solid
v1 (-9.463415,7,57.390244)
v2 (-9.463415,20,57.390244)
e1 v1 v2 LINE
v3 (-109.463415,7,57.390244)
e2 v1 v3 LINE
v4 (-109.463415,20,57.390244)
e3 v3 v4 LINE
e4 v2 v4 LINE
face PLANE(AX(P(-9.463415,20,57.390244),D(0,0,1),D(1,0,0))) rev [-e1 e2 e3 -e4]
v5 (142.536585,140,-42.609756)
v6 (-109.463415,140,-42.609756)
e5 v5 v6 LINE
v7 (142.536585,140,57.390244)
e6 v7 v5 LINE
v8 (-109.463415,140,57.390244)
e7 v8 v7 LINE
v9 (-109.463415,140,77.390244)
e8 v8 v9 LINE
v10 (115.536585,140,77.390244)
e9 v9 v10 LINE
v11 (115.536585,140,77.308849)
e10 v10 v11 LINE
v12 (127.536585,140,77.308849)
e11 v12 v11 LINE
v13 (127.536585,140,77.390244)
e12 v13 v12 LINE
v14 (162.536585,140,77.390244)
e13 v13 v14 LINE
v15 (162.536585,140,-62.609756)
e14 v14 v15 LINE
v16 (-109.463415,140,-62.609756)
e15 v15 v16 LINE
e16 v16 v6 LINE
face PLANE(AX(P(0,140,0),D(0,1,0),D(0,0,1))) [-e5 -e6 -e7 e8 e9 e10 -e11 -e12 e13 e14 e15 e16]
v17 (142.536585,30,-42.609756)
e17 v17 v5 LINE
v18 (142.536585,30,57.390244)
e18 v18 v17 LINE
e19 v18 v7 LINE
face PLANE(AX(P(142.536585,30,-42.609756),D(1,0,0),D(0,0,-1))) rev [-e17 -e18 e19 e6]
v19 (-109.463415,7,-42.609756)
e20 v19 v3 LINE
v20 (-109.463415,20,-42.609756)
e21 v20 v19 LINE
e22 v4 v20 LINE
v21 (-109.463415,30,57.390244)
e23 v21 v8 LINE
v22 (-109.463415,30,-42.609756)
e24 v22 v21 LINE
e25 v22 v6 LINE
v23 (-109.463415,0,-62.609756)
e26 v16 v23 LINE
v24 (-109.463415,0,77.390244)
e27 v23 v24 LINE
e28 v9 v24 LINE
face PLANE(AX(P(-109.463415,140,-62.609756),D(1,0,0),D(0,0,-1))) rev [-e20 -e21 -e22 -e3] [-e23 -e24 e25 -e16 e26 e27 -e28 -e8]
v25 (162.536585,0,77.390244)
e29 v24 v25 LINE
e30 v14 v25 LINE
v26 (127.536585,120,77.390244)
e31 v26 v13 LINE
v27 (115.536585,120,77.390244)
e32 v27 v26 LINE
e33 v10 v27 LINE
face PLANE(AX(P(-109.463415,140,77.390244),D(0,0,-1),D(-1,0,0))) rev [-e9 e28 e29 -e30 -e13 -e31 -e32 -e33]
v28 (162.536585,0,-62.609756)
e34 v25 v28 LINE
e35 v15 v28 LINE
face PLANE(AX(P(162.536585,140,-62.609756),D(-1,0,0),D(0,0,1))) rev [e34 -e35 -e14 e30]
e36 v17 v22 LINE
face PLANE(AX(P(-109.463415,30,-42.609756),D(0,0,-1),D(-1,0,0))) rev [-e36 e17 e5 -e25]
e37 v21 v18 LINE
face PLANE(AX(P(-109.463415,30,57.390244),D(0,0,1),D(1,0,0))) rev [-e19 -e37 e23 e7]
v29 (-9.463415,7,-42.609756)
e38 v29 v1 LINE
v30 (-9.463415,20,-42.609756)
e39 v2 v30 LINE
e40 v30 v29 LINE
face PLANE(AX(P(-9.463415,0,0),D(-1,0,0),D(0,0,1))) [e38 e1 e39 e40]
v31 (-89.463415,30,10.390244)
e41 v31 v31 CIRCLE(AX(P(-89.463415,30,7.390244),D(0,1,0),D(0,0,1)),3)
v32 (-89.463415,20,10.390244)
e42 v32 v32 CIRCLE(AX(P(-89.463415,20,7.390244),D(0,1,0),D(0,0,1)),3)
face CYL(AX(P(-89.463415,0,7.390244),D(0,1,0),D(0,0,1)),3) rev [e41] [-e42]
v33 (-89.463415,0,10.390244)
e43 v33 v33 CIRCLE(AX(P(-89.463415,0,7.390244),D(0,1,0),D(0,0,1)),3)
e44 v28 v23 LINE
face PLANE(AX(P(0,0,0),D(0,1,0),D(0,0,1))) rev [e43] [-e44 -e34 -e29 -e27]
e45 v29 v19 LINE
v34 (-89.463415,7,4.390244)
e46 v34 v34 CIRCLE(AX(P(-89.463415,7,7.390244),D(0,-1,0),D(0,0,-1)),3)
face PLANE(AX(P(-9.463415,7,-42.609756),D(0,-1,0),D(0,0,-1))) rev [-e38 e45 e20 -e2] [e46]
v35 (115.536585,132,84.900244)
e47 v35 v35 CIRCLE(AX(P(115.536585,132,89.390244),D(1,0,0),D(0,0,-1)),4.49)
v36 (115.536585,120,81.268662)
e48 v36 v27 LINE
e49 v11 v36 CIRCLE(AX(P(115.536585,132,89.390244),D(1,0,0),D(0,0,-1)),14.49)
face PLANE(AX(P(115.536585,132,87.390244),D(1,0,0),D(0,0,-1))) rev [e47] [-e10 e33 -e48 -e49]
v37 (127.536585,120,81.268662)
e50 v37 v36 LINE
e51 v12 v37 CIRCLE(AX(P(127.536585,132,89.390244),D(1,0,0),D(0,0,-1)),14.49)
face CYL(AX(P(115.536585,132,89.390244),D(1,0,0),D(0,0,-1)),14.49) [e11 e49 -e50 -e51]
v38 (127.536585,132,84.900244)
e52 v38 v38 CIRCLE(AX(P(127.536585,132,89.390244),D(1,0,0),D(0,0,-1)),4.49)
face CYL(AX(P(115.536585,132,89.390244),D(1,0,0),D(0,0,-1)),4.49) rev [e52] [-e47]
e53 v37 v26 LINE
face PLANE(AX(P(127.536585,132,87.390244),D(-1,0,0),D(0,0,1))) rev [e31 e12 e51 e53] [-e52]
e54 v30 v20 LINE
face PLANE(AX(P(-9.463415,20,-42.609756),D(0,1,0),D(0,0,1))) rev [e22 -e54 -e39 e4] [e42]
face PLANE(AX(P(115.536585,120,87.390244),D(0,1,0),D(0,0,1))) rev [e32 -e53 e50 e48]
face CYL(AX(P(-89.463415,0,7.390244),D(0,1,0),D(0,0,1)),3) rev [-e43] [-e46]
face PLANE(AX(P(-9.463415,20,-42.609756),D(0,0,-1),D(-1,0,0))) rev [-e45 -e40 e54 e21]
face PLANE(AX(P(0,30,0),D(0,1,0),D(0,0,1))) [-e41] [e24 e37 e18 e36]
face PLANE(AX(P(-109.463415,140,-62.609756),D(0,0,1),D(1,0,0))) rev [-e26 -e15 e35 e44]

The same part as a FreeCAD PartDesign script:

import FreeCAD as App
import Part
import Sketcher

V = App.Vector
Q = App.Units.Quantity


def add_polygon(sketch, points):
    """Adds a closed chain of lines whose ends are joined by coincident constraints."""
    first, n = sketch.GeometryCount, len(points)
    for a, b in zip(points, points[1:] + points[:1]):
        sketch.addGeometry(Part.LineSegment(App.Vector(*a, 0), App.Vector(*b, 0)), False)
    for i in range(n):
        sketch.addConstraint(Sketcher.Constraint("Coincident", first + i, 2, first + (i + 1) % n, 1))

doc = App.newDocument("Part")
params = doc.addObject("Spreadsheet::Sheet", "Params")
for row, (alias, value) in enumerate([
    ("sketch1_width", "272 mm"),
    ("sketch1_height", "140 mm"),
    ("pad1_length", "140 mm"),
    ("sketch2_width", "252 mm"),
    ("sketch2_height", "100 mm"),
    ("pocket1_length", "110 mm"),
    ("sketch3_width", "13 mm"),
    ("sketch3_height", "100 mm"),
    ("pocket2_length", "100 mm"),
    ("sketch4_diameter", "6 mm"),
    ("sketch5_width", "12 mm"),
    ("pad2_length", "10 mm"),
    ("sketch6_diameter", "28.98 mm"),
    ("sketch6_diameter2", "8.98 mm"),
    ("pad3_length", "12 mm"),
    ("sketch7_diameter", "8.98 mm"),
], start=1):
    params.set(f"A{row}", alias)
    params.set(f"B{row}", "=" + value)
    params.setAlias(f"B{row}", alias)

body = doc.addObject("PartDesign::Body", "Body")

# Sketch on XZ plane
sketch1 = doc.addObject("Sketcher::SketchObject", "Sketch")
body.addObject(sketch1)
sketch1.AttachmentSupport = (doc.XZ_Plane, [""])
sketch1.MapMode = "FlatFace"
add_polygon(sketch1, [(-109, -63), (-109, 77), (163, 77), (163, -63)])  # lines 0-3
sketch1.addConstraint([
    Sketcher.Constraint("Vertical", 0),
    Sketcher.Constraint("Horizontal", 1),
    Sketcher.Constraint("Vertical", 2),
    Sketcher.Constraint("Horizontal", 3),
    Sketcher.Constraint("DistanceX", 1, 1, 1, 2, Q("272 mm")),
    Sketcher.Constraint("DistanceY", 0, 1, 0, 2, Q("140 mm")),
    Sketcher.Constraint("DistanceX", 0, 2, -1, 1, Q("109.463415 mm")),
    Sketcher.Constraint("DistanceY", -1, 1, 0, 2, Q("77.390244 mm")),
])
sketch1.setExpression("Constraints[8]", "Params.sketch1_width")
sketch1.setExpression("Constraints[9]", "Params.sketch1_height")
pad1 = doc.addObject("PartDesign::Pad", "Pad")
body.addObject(pad1)
pad1.Profile = sketch1
pad1.setExpression("Length", "Params.pad1_length")
pad1.Reversed = True

# Sketch on XZ plane
sketch2 = doc.addObject("Sketcher::SketchObject", "Sketch001")
body.addObject(sketch2)
sketch2.AttachmentSupport = (doc.XZ_Plane, [""])
sketch2.MapMode = "FlatFace"
sketch2.AttachmentOffset = App.Placement(V(0, 0, -140), App.Rotation())
add_polygon(sketch2, [(-109, -43), (-109, 57), (143, 57), (143, -43)])  # lines 0-3
sketch2.addConstraint([
    Sketcher.Constraint("Vertical", 0),
    Sketcher.Constraint("Horizontal", 1),
    Sketcher.Constraint("Vertical", 2),
    Sketcher.Constraint("Horizontal", 3),
    Sketcher.Constraint("DistanceX", 1, 1, 1, 2, Q("252 mm")),
    Sketcher.Constraint("DistanceY", 0, 1, 0, 2, Q("100 mm")),
    Sketcher.Constraint("DistanceX", 0, 2, -1, 1, Q("109.463415 mm")),
    Sketcher.Constraint("DistanceY", -1, 1, 0, 2, Q("57.390244 mm")),
])
sketch2.setExpression("Constraints[8]", "Params.sketch2_width")
sketch2.setExpression("Constraints[9]", "Params.sketch2_height")
pocket1 = doc.addObject("PartDesign::Pocket", "Pocket")
body.addObject(pocket1)
pocket1.Profile = sketch2
pocket1.setExpression("Length", "Params.pocket1_length")
pocket1.Reversed = True

# Sketch on YZ plane
sketch3 = doc.addObject("Sketcher::SketchObject", "Sketch002")
body.addObject(sketch3)
sketch3.AttachmentSupport = (doc.YZ_Plane, [""])
sketch3.MapMode = "FlatFace"
sketch3.AttachmentOffset = App.Placement(V(0, 0, -109.463415), App.Rotation())
add_polygon(sketch3, [(20, -43), (7, -43), (7, 57), (20, 57)])  # lines 0-3
sketch3.addConstraint([
    Sketcher.Constraint("Horizontal", 0),
    Sketcher.Constraint("Vertical", 1),
    Sketcher.Constraint("Horizontal", 2),
    Sketcher.Constraint("Vertical", 3),
    Sketcher.Constraint("DistanceX", 0, 2, 0, 1, Q("13 mm")),
    Sketcher.Constraint("DistanceY", 1, 1, 1, 2, Q("100 mm")),
    Sketcher.Constraint("DistanceX", -1, 1, 0, 2, Q("7 mm")),
    Sketcher.Constraint("DistanceY", 0, 2, -1, 1, Q("42.609756 mm")),
])
sketch3.setExpression("Constraints[8]", "Params.sketch3_width")
sketch3.setExpression("Constraints[9]", "Params.sketch3_height")
pocket2 = doc.addObject("PartDesign::Pocket", "Pocket001")
body.addObject(pocket2)
pocket2.Profile = sketch3
pocket2.setExpression("Length", "Params.pocket2_length")
pocket2.Reversed = True

# Sketch on XZ plane
sketch4 = doc.addObject("Sketcher::SketchObject", "Sketch003")
body.addObject(sketch4)
sketch4.AttachmentSupport = (doc.XZ_Plane, [""])
sketch4.MapMode = "FlatFace"
sketch4.AttachmentOffset = App.Placement(V(0, 0, -30), App.Rotation())
sketch4.addGeometry(Part.Circle(V(-89.5, 7.4, 0), V(0, 0, 1), 3), False)
sketch4.addConstraint([
    Sketcher.Constraint("Diameter", 0, Q("6 mm")),
    Sketcher.Constraint("DistanceX", 0, 3, -1, 1, Q("89.463415 mm")),
    Sketcher.Constraint("DistanceY", -1, 1, 0, 3, Q("7.390244 mm")),
])
sketch4.setExpression("Constraints[0]", "Params.sketch4_diameter")
pocket3 = doc.addObject("PartDesign::Pocket", "Pocket002")
body.addObject(pocket3)
pocket3.Profile = sketch4
pocket3.Type = "ThroughAll"
pocket3.Reversed = True

# Sketch on XY plane
sketch5 = doc.addObject("Sketcher::SketchObject", "Sketch004")
body.addObject(sketch5)
sketch5.AttachmentSupport = (doc.XY_Plane, [""])
sketch5.MapMode = "FlatFace"
sketch5.AttachmentOffset = App.Placement(V(0, 0, 77.390244), App.Rotation())
add_polygon(sketch5, [(116, 132), (116, 120), (128, 120), (128, 132)])  # lines 0-3
sketch5.addConstraint([
    Sketcher.Constraint("Vertical", 0),
    Sketcher.Constraint("Horizontal", 1),
    Sketcher.Constraint("Vertical", 2),
    Sketcher.Constraint("Horizontal", 3),
    Sketcher.Constraint("Equal", 3, 0),
    Sketcher.Constraint("DistanceX", 1, 1, 1, 2, Q("12 mm")),
    Sketcher.Constraint("DistanceY", -1, 1, 0, 2, Q("120 mm")),
    Sketcher.Constraint("DistanceX", -1, 1, 0, 2, Q("115.536585 mm")),
])
sketch5.setExpression("Constraints[9]", "Params.sketch5_width")
pad2 = doc.addObject("PartDesign::Pad", "Pad001")
body.addObject(pad2)
pad2.Profile = sketch5
pad2.setExpression("Length", "Params.pad2_length")

# Sketch on YZ plane
sketch6 = doc.addObject("Sketcher::SketchObject", "Sketch005")
body.addObject(sketch6)
sketch6.AttachmentSupport = (doc.YZ_Plane, [""])
sketch6.MapMode = "FlatFace"
sketch6.AttachmentOffset = App.Placement(V(0, 0, 127.536585), App.Rotation())
sketch6.addGeometry([
    Part.Circle(V(132, 89.4, 0), V(0, 0, 1), 14.5),
    Part.Circle(V(132, 89.4, 0), V(0, 0, 1), 4.5),
], False)
sketch6.addConstraint([
    Sketcher.Constraint("Coincident", 1, 3, 0, 3),
    Sketcher.Constraint("Diameter", 0, Q("28.98 mm")),
    Sketcher.Constraint("Diameter", 1, Q("8.98 mm")),
    Sketcher.Constraint("DistanceX", -1, 1, 0, 3, Q("132 mm")),
    Sketcher.Constraint("DistanceY", -1, 1, 0, 3, Q("89.390244 mm")),
])
sketch6.setExpression("Constraints[1]", "Params.sketch6_diameter")
sketch6.setExpression("Constraints[2]", "Params.sketch6_diameter2")
pad3 = doc.addObject("PartDesign::Pad", "Pad002")
body.addObject(pad3)
pad3.Profile = sketch6
pad3.setExpression("Length", "Params.pad3_length")
pad3.Reversed = True

# Sketch on YZ plane
sketch7 = doc.addObject("Sketcher::SketchObject", "Sketch006")
body.addObject(sketch7)
sketch7.AttachmentSupport = (doc.YZ_Plane, [""])
sketch7.MapMode = "FlatFace"
sketch7.AttachmentOffset = App.Placement(V(0, 0, 127.536585), App.Rotation())
sketch7.addGeometry(Part.Circle(V(132, 89.4, 0), V(0, 0, 1), 4.5), False)
sketch7.addConstraint([
    Sketcher.Constraint("Diameter", 0, Q("8.98 mm")),
    Sketcher.Constraint("DistanceX", -1, 1, 0, 3, Q("132 mm")),
    Sketcher.Constraint("DistanceY", -1, 1, 0, 3, Q("89.390244 mm")),
])
sketch7.setExpression("Constraints[0]", "Params.sketch7_diameter")
pocket4 = doc.addObject("PartDesign::Pocket", "Pocket003")
body.addObject(pocket4)
pocket4.Profile = sketch7
pocket4.Type = "ThroughAll"

doc.recompute()
